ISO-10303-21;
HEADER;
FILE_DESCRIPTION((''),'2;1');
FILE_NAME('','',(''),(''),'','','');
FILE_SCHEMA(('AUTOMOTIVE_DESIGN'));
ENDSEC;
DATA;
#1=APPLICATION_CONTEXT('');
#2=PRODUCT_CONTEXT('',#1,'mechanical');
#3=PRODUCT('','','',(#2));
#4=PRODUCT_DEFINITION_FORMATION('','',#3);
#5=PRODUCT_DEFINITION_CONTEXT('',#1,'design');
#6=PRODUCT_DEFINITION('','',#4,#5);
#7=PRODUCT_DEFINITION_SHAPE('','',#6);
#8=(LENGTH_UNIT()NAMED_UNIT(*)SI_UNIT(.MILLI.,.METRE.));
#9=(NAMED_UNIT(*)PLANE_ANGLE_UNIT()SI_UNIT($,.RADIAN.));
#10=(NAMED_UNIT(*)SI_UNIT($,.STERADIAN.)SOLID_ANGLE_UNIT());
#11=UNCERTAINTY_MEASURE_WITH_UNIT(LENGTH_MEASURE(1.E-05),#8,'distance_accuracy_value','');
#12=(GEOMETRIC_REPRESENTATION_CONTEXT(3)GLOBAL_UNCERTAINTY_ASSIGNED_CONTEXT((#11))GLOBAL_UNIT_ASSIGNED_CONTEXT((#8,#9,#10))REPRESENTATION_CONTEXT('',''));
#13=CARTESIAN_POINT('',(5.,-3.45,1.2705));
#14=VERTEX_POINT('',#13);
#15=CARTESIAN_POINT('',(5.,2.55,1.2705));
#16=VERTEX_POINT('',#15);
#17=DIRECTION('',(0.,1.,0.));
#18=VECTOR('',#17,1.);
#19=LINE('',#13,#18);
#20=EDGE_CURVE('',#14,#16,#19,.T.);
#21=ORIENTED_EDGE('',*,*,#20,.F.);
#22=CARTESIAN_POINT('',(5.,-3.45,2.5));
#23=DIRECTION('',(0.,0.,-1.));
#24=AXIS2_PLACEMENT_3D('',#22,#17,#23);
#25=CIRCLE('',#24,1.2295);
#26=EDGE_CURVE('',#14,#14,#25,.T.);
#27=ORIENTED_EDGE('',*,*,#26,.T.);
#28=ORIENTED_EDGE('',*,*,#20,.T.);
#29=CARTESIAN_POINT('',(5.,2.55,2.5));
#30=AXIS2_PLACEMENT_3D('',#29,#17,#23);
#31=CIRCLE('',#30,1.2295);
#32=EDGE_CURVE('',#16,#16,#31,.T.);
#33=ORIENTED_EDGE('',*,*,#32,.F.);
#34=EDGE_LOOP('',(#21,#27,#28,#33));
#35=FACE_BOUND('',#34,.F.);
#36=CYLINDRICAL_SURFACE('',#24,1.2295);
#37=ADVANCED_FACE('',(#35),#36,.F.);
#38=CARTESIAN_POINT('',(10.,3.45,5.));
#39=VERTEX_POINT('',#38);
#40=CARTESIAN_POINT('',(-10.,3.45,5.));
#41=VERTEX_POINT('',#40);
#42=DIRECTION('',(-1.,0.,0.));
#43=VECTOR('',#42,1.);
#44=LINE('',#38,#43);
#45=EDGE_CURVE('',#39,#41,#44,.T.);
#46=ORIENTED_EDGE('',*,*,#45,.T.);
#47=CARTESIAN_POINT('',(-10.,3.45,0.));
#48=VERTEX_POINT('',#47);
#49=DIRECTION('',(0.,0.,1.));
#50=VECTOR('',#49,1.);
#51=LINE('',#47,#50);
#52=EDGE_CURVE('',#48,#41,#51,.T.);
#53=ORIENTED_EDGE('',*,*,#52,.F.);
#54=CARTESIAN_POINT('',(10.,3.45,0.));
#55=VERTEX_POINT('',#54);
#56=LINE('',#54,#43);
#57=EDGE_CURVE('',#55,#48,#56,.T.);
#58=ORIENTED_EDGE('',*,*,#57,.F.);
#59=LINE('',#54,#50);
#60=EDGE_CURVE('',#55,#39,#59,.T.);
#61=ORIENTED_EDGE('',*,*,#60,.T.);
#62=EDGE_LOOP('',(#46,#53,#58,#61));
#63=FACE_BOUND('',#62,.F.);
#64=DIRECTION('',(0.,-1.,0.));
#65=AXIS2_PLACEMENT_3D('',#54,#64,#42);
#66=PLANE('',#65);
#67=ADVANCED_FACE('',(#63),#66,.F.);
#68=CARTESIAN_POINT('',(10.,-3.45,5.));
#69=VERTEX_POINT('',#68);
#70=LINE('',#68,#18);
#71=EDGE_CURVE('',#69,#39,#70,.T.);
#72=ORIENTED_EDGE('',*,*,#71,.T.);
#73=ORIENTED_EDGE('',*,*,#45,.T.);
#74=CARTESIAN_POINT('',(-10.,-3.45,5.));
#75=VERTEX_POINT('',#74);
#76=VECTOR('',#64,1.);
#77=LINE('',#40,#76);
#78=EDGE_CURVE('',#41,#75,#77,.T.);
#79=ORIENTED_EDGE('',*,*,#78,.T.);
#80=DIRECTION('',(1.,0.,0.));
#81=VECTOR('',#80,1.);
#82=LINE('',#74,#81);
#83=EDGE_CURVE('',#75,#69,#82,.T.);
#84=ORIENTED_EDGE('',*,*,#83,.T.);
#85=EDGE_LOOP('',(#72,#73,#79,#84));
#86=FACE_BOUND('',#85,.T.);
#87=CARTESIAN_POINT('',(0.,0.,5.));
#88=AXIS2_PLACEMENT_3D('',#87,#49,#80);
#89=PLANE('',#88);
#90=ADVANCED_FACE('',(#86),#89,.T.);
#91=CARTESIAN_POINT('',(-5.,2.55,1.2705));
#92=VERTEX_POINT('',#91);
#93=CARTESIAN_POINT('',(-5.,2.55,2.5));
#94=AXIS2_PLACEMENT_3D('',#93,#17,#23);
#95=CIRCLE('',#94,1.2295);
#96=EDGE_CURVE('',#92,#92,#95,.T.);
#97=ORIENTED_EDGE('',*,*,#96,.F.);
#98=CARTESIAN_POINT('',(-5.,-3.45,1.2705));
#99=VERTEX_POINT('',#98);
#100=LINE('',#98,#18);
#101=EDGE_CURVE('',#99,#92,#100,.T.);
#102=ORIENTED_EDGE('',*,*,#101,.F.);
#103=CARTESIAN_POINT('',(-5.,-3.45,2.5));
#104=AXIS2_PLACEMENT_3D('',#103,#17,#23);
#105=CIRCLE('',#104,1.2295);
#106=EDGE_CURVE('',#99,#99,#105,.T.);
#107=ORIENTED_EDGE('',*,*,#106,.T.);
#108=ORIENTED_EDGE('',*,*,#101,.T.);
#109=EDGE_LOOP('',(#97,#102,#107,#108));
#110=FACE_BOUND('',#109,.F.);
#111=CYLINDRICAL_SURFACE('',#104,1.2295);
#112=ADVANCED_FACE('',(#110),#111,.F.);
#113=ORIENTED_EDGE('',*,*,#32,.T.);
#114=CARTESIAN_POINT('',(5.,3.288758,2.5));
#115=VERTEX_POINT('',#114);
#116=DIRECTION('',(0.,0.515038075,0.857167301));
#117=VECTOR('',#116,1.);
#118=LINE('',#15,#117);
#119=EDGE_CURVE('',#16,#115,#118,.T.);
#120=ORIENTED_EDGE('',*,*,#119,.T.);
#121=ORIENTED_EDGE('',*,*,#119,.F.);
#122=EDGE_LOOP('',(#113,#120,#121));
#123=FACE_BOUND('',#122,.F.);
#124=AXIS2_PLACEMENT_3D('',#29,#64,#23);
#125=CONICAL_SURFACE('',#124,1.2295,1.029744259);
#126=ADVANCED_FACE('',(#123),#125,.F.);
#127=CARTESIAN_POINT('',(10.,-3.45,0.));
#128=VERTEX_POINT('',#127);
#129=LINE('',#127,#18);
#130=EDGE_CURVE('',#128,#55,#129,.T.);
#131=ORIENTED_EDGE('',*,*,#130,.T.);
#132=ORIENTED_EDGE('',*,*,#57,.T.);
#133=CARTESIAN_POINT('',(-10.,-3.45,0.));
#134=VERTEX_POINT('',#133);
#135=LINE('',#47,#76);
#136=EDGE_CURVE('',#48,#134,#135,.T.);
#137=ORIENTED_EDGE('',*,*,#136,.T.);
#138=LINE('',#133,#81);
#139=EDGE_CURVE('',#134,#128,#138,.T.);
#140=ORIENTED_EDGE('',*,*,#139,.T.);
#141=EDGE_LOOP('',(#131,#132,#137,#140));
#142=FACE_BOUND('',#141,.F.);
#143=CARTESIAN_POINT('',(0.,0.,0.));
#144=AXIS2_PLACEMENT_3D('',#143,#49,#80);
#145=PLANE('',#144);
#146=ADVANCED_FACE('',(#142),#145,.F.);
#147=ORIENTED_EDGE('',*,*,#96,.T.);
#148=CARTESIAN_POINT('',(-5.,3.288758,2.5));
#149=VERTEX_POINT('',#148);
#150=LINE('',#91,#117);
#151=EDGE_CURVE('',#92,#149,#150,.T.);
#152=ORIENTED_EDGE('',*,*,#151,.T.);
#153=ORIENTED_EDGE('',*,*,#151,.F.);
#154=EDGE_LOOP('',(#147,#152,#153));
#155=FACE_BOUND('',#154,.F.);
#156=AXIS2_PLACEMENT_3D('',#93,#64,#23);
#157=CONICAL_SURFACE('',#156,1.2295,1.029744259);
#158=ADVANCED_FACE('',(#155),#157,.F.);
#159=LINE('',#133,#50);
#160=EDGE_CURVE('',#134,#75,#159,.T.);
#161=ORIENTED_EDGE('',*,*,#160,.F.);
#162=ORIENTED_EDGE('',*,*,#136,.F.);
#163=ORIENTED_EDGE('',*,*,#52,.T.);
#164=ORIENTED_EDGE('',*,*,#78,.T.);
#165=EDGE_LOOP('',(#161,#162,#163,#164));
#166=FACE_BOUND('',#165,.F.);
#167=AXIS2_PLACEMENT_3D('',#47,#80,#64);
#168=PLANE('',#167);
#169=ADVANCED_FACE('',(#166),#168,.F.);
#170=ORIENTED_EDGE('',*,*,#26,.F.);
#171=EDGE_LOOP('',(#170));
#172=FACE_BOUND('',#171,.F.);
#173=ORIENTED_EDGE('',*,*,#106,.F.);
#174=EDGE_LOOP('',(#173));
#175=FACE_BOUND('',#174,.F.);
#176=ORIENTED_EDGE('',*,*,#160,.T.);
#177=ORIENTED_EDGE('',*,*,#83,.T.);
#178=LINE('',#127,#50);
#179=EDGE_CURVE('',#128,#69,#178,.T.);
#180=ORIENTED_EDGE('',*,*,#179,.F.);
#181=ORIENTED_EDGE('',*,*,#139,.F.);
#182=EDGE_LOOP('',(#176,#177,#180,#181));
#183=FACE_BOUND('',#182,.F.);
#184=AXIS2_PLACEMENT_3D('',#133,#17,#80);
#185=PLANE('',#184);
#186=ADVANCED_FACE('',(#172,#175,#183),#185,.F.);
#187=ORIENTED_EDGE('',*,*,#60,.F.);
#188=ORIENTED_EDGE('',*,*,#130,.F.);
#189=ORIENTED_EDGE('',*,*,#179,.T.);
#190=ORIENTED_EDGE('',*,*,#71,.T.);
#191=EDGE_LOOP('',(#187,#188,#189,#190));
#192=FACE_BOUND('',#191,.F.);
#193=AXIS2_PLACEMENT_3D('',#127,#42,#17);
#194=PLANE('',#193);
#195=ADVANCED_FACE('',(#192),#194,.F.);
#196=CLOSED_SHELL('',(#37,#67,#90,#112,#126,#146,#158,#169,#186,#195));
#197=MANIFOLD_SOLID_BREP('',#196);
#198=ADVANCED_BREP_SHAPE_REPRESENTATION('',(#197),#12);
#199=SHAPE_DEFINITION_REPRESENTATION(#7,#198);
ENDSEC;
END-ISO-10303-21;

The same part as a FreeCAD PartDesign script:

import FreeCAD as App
import Part
import Sketcher

V = App.Vector


def add_polygon(sketch, points):
    """Adds a closed chain of lines whose ends are joined by coincident constraints."""
    first, n = sketch.GeometryCount, len(points)
    for a, b in zip(points, points[1:] + points[:1]):
        sketch.addGeometry(Part.LineSegment(App.Vector(*a, 0), App.Vector(*b, 0)), False)
    for i in range(n):
        sketch.addConstraint(Sketcher.Constraint("Coincident", first + i, 2, first + (i + 1) % n, 1))

doc = App.newDocument("Part")
body = doc.addObject("PartDesign::Body", "Body")

# Sketch on XY plane
sketch1 = body.newObject("Sketcher::SketchObject", "Sketch")
sketch1.AttachmentSupport = (doc.getObject("XY_Plane"), [""])
sketch1.MapMode = "FlatFace"
add_polygon(sketch1, [(-10, 3), (-10, -3), (10, -3), (10, 3)])  # lines 0-3
sketch1.addConstraint([
    Sketcher.Constraint("Vertical", 0),
    Sketcher.Constraint("Horizontal", 1),
    Sketcher.Constraint("Vertical", 2),
    Sketcher.Constraint("Horizontal", 3),
    Sketcher.Constraint("Symmetric", 0, 2, 2, 2, -1, 1),
    Sketcher.Constraint("DistanceX", 1, 1, 1, 2, 20.0),
    Sketcher.Constraint("DistanceY", 0, 2, 0, 1, 6.9),
])
pad1 = body.newObject("PartDesign::Pad", "Pad")
pad1.Profile = sketch1
pad1.Length = 5

# Sketch on XZ plane
sketch2 = body.newObject("Sketcher::SketchObject", "Sketch001")
sketch2.AttachmentSupport = (doc.getObject("XZ_Plane"), [""])
sketch2.MapMode = "FlatFace"
sketch2.AttachmentOffset = App.Placement(V(0, 0, 3.45), App.Rotation())
sketch2.addGeometry([
    Part.Circle(V(-5, 2.5, 0), V(0, 0, 1), 1.2),
    Part.Circle(V(5, 2.5, 0), V(0, 0, 1), 1.2),
], False)
sketch2.addConstraint([
    Sketcher.Constraint("Equal", 0, 1),
    Sketcher.Constraint("Symmetric", 0, 3, 1, 3, -2),
    Sketcher.Constraint("Diameter", 0, 2.459),
    Sketcher.Constraint("DistanceX", 0, 3, -1, 1, 5.0),
    Sketcher.Constraint("DistanceY", -1, 1, 0, 3, 2.5),
])
doc.recompute()
hole = body.newObject("PartDesign::Hole", "Hole")
hole.Profile = sketch2
hole.ThreadType = "None"
hole.Diameter = 2.459
hole.DepthType = "Dimension"
hole.Depth = 6
hole.DrillPoint = "Angled"
hole.DrillPointAngle = 118

doc.recompute()
